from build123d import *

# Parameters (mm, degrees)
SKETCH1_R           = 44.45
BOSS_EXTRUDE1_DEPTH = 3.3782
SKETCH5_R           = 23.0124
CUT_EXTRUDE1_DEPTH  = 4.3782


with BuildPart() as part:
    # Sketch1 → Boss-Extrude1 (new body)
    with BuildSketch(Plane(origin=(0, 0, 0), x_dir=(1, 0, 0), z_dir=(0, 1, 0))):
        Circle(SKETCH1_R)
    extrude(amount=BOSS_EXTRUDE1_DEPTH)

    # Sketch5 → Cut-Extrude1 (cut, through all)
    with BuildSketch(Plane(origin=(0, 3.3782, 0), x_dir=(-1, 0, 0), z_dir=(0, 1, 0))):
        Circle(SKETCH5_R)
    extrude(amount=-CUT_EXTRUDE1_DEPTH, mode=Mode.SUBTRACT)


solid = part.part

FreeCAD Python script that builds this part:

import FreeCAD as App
import Part
import Sketcher

V = App.Vector
Q = App.Units.Quantity

doc = App.newDocument("Part")
body = doc.addObject("PartDesign::Body", "Body")

# Sketch on XZ plane
sketch1 = doc.addObject("Sketcher::SketchObject", "Sketch")
body.addObject(sketch1)
sketch1.AttachmentSupport = (doc.XZ_Plane, [""])
sketch1.MapMode = "FlatFace"
sketch1.addGeometry(Part.Circle(V(0, 0, 0), V(0, 0, 1), 44), False)
sketch1.addConstraint([
    Sketcher.Constraint("Coincident", 0, 3, -1, 1),
    Sketcher.Constraint("Diameter", 0, Q("3.5 in")),
])
pad1 = doc.addObject("PartDesign::Pad", "Pad")
body.addObject(pad1)
pad1.Profile = sketch1
pad1.Length = Q("0.133 in")
pad1.Reversed = True

# Sketch on XZ plane
sketch2 = doc.addObject("Sketcher::SketchObject", "Sketch001")
body.addObject(sketch2)
sketch2.AttachmentSupport = (doc.XZ_Plane, [""])
sketch2.MapMode = "FlatFace"
sketch2.AttachmentOffset = App.Placement(V(0, 0, -0.133 * 25.4), App.Rotation())
sketch2.addGeometry(Part.Circle(V(0, 0, 0), V(0, 0, 1), 23), False)
sketch2.addConstraint([
    Sketcher.Constraint("Coincident", 0, 3, -1, 1),
    Sketcher.Constraint("Diameter", 0, Q("1.812 in")),
])
pocket1 = doc.addObject("PartDesign::Pocket", "Pocket")
body.addObject(pocket1)
pocket1.Profile = sketch2
pocket1.Type = "ThroughAll"
pocket1.Reversed = True

doc.recompute()
